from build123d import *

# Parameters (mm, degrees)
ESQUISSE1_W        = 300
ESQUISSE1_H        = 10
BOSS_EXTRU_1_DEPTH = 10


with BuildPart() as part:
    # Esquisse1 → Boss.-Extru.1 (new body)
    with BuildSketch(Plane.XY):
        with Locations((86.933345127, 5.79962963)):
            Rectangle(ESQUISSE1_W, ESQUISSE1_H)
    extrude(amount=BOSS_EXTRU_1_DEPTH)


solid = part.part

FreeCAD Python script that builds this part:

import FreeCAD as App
import Part
import Sketcher
from FreeCAD import Vector
Q = App.Units.Quantity


def add_polygon(sketch, points):
    """Adds a closed chain of lines whose ends are joined by coincident constraints."""
    first, n = sketch.GeometryCount, len(points)
    for a, b in zip(points, points[1:] + points[:1]):
        sketch.addGeometry(Part.LineSegment(App.Vector(*a, 0), App.Vector(*b, 0)), False)
    for i in range(n):
        sketch.addConstraint(Sketcher.Constraint("Coincident", first + i, 2, first + (i + 1) % n, 1))

doc = App.newDocument("Part")
body = doc.addObject("PartDesign::Body", "Body")

# Sketch on XY plane
sketch1 = body.newObject("Sketcher::SketchObject", "Sketch")
sketch1.AttachmentSupport = (doc.getObject("XY_Plane"), [""])
sketch1.MapMode = "FlatFace"
add_polygon(sketch1, [(-63, 11), (-63, 1), (237, 1), (237, 11)])  # lines 0-3
sketch1.addConstraint(Sketcher.Constraint("Vertical", 0))
sketch1.addConstraint(Sketcher.Constraint("Horizontal", 1))
sketch1.addConstraint(Sketcher.Constraint("Vertical", 2))
sketch1.addConstraint(Sketcher.Constraint("Horizontal", 3))
sketch1.addConstraint(Sketcher.Constraint("DistanceX", 1, 1, 1, 2, Q("300 mm")))
sketch1.addConstraint(Sketcher.Constraint("DistanceY", 0, 2, 0, 1, Q("10 mm")))
sketch1.addConstraint(Sketcher.Constraint("DistanceY", -1, 1, 0, 2, Q("0.79963 mm")))
sketch1.addConstraint(Sketcher.Constraint("DistanceX", 0, 2, -1, 1, Q("63.066655 mm")))
pad1 = body.newObject("PartDesign::Pad", "Pad")
pad1.Profile = sketch1
pad1.Length = 10

doc.recompute()
